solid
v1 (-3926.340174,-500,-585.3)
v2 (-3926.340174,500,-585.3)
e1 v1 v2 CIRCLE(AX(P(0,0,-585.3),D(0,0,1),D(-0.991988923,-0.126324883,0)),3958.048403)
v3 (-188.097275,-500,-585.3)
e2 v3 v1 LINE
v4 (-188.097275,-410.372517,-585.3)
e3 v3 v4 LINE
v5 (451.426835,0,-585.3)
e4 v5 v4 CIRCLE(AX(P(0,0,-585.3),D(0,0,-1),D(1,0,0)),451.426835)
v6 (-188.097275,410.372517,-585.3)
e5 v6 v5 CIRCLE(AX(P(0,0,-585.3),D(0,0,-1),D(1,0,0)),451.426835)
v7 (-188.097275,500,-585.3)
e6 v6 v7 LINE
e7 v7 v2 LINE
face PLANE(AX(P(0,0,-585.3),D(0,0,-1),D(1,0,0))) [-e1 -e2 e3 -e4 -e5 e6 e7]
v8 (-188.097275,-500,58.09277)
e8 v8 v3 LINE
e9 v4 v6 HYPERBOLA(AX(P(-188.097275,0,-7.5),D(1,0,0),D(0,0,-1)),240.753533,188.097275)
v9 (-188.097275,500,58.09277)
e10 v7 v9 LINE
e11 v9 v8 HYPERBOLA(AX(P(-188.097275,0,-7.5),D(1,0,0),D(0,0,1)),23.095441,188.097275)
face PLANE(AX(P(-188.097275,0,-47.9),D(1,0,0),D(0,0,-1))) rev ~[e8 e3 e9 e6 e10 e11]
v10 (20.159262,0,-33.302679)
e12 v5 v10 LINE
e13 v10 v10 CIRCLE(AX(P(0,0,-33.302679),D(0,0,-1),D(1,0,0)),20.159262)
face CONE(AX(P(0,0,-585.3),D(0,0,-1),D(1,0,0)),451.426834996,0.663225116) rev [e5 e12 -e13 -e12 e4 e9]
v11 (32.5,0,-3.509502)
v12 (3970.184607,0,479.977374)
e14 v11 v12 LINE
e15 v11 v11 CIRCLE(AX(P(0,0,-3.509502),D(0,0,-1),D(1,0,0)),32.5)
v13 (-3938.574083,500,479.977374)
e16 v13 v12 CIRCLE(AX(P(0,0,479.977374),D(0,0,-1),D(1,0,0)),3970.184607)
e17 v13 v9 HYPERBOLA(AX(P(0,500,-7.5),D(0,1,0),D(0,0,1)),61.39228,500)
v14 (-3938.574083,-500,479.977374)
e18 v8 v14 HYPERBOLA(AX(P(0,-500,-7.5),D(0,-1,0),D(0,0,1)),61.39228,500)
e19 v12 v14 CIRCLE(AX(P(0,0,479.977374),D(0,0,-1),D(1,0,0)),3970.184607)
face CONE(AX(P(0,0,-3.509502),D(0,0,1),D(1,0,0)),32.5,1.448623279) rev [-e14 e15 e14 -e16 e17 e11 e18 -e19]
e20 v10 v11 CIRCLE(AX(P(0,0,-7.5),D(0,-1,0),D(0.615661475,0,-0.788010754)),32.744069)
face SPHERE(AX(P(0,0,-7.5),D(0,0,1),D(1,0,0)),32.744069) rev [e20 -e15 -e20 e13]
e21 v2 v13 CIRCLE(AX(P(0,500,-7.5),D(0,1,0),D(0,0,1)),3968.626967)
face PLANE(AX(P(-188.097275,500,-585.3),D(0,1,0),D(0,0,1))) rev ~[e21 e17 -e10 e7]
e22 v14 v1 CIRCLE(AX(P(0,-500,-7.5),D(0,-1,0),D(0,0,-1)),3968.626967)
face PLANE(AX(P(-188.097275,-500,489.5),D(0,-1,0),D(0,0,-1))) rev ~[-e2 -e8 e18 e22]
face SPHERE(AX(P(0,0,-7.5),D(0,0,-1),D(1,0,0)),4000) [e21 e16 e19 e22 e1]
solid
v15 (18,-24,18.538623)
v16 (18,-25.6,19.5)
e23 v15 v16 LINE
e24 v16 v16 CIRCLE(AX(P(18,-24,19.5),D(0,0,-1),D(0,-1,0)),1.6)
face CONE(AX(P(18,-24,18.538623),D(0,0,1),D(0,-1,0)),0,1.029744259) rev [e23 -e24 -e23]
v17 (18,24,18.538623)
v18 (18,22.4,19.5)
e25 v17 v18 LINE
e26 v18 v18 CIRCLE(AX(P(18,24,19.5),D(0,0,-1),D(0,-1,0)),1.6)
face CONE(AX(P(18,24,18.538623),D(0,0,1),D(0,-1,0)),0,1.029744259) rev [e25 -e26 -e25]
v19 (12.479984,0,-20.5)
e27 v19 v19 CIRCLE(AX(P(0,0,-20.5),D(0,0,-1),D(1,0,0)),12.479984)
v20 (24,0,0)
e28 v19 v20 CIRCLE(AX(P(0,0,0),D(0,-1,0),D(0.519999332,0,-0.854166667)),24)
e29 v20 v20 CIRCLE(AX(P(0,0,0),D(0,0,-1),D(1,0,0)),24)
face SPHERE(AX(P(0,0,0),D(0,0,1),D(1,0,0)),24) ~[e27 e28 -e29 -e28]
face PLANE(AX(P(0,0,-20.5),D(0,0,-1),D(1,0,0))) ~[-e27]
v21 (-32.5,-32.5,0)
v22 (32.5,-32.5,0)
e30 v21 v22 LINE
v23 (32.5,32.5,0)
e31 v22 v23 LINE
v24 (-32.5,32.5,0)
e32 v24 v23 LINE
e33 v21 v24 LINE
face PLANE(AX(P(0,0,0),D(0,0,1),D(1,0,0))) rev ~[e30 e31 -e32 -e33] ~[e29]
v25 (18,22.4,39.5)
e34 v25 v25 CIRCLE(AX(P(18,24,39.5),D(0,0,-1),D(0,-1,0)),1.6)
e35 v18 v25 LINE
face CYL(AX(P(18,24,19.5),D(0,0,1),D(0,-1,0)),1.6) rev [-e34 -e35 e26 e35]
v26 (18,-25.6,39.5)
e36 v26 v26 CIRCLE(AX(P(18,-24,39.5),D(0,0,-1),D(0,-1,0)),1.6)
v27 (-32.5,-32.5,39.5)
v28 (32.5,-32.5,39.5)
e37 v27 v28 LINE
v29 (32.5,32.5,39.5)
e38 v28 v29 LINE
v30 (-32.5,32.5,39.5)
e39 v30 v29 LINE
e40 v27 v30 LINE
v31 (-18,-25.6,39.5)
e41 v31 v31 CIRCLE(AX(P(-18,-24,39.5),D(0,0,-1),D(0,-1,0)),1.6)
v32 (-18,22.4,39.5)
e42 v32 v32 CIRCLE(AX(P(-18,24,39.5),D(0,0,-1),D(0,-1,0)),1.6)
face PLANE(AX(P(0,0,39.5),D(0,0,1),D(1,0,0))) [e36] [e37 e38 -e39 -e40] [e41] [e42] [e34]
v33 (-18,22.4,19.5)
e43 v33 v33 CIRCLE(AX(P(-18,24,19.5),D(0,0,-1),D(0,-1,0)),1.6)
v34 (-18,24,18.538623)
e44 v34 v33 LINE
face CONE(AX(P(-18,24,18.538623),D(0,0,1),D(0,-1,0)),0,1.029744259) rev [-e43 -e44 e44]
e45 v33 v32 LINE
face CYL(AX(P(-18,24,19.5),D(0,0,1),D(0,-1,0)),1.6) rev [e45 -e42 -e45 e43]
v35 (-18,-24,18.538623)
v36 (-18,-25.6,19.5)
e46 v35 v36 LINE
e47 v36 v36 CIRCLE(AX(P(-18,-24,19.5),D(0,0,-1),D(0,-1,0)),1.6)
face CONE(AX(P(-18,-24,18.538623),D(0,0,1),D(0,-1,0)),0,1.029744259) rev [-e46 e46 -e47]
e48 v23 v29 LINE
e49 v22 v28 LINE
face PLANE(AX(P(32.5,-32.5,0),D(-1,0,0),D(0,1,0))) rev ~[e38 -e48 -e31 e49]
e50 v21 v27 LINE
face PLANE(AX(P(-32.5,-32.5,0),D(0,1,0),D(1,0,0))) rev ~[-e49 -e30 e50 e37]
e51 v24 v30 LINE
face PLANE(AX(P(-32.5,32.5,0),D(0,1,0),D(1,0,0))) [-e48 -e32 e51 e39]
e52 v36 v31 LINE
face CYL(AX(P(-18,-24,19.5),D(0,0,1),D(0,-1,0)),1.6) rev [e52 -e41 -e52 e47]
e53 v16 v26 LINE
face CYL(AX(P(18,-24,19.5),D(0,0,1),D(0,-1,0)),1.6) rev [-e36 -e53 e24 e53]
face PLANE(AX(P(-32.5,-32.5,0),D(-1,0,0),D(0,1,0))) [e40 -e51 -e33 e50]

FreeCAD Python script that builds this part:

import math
import FreeCAD as App
import Part
import Sketcher

V = App.Vector
Q = App.Units.Quantity

doc = App.newDocument("Part")
body = doc.addObject("PartDesign::Body", "Body")

# Sketch on XY plane
sketch1 = body.newObject("Sketcher::SketchObject", "Sketch")
sketch1.AttachmentSupport = (doc.getObject("XY_Plane"), [""])
sketch1.MapMode = "FlatFace"
sketch1.addGeometry(Part.LineSegment(V(-32, 32, 0), V(-32, -32, 0)), False)
sketch1.addGeometry(Part.LineSegment(V(-32, -32, 0), V(32, -32, 0)), False)
sketch1.addGeometry(Part.LineSegment(V(32, -32, 0), V(32, 32, 0)), False)
sketch1.addGeometry(Part.LineSegment(V(32, 32, 0), V(-32, 32, 0)), False)
sketch1.addConstraint(Sketcher.Constraint("Coincident", 0, 2, 1, 1))
sketch1.addConstraint(Sketcher.Constraint("Coincident", 1, 2, 2, 1))
sketch1.addConstraint(Sketcher.Constraint("Coincident", 2, 2, 3, 1))
sketch1.addConstraint(Sketcher.Constraint("Coincident", 3, 2, 0, 1))
sketch1.addConstraint(Sketcher.Constraint("Vertical", 0))
sketch1.addConstraint(Sketcher.Constraint("Horizontal", 1))
sketch1.addConstraint(Sketcher.Constraint("Vertical", 2))
sketch1.addConstraint(Sketcher.Constraint("Horizontal", 3))
sketch1.addConstraint(Sketcher.Constraint("Symmetric", 0, 2, 2, 2, -1, 1))
sketch1.addConstraint(Sketcher.Constraint("Equal", 3, 0))
sketch1.addConstraint(Sketcher.Constraint("DistanceX", 1, 1, 1, 2, 65.0))
pad1 = body.newObject("PartDesign::Pad", "Pad")
pad1.Profile = sketch1
pad1.Length = 39.5

# Sketch on XZ plane
sketch2 = body.newObject("Sketcher::SketchObject", "Sketch001")
sketch2.AttachmentSupport = (doc.getObject("XZ_Plane"), [""])
sketch2.MapMode = "FlatFace"
sketch2.addGeometry(Part.LineSegment(V(0, -20, 0), V(0, 0, 0)), False)
sketch2.addGeometry(Part.LineSegment(V(0, 0, 0), V(24, 0, 0)), False)
sketch2.addGeometry(Part.ArcOfCircle(Part.Circle(V(0, 0, 0), V(0, 0, 1), 24), math.radians(-59), math.radians(0)), False)
sketch2.addGeometry(Part.LineSegment(V(12, -20, 0), V(0, -20, 0)), False)
sketch2.addConstraint(Sketcher.Constraint("Coincident", 0, 2, 1, 1))
sketch2.addConstraint(Sketcher.Constraint("Coincident", 1, 2, 2, 2))
sketch2.addConstraint(Sketcher.Constraint("Coincident", 2, 1, 3, 1))
sketch2.addConstraint(Sketcher.Constraint("Coincident", 3, 2, 0, 1))
sketch2.addConstraint(Sketcher.Constraint("Vertical", 0))
sketch2.addConstraint(Sketcher.Constraint("Horizontal", 1))
sketch2.addConstraint(Sketcher.Constraint("Horizontal", 3))
sketch2.addConstraint(Sketcher.Constraint("Coincident", 2, 3, -1, 1))
sketch2.addConstraint(Sketcher.Constraint("Coincident", 0, 2, -1, 1))
sketch2.addConstraint(Sketcher.Constraint("Radius", 2, 24.0))
sketch2.addConstraint(Sketcher.Constraint("DistanceY", 0, 1, 0, 2, 20.5))
revolution = body.newObject("PartDesign::Revolution", "Revolution")
revolution.Profile = sketch2
revolution.ReferenceAxis = (sketch2, ["V_Axis"])
revolution.Angle = 360

# Sketch on YZ plane
sketch3 = body.newObject("Sketcher::SketchObject", "Sketch002")
sketch3.AttachmentSupport = (doc.getObject("YZ_Plane"), [""])
sketch3.MapMode = "FlatFace"
sketch3.AttachmentOffset = App.Placement(V(0, 0, 18), App.Rotation())
sketch3.addGeometry(Part.LineSegment(V(24, 18.5, 0), V(24, 39.5, 0)), False)
sketch3.addGeometry(Part.LineSegment(V(24, 39.5, 0), V(22.4, 39.5, 0)), False)
sketch3.addGeometry(Part.LineSegment(V(22.4, 39.5, 0), V(22.4, 19.5, 0)), False)
sketch3.addGeometry(Part.LineSegment(V(22.4, 19.5, 0), V(24, 18.5, 0)), False)
sketch3.addGeometry(Part.LineSegment(V(24, 39.5, 0), V(24, 18.5, 0)), True)  # axis
sketch3.addConstraint(Sketcher.Constraint("Coincident", 0, 2, 1, 1))
sketch3.addConstraint(Sketcher.Constraint("Coincident", 1, 2, 2, 1))
sketch3.addConstraint(Sketcher.Constraint("Coincident", 2, 2, 3, 1))
sketch3.addConstraint(Sketcher.Constraint("Coincident", 3, 2, 0, 1))
sketch3.addConstraint(Sketcher.Constraint("Vertical", 0))
sketch3.addConstraint(Sketcher.Constraint("Horizontal", 1))
sketch3.addConstraint(Sketcher.Constraint("Vertical", 2))
sketch3.addConstraint(Sketcher.Constraint("Vertical", 4))
sketch3.addConstraint(Sketcher.Constraint("Coincident", 4, 1, 0, 2))
sketch3.addConstraint(Sketcher.Constraint("Equal", 0, 4))
sketch3.addConstraint(Sketcher.Constraint("DistanceY", 2, 2, 2, 1, 20.0))
sketch3.addConstraint(Sketcher.Constraint("Angle", 3, Q("-31 deg")))
sketch3.addConstraint(Sketcher.Constraint("DistanceX", 1, 2, 1, 1, 1.6))
sketch3.addConstraint(Sketcher.Constraint("DistanceX", -1, 1, 0, 2, 24.0))
sketch3.addConstraint(Sketcher.Constraint("DistanceY", -1, 1, 0, 2, 39.5))
groove = body.newObject("PartDesign::Groove", "Groove")
groove.Profile = sketch3
groove.ReferenceAxis = (sketch3, ["Axis0"])
groove.Angle = 360
doc.recompute()

linearpattern = body.newObject("PartDesign::LinearPattern", "LinearPattern")
linearpattern.Originals = [groove]
linearpattern.Direction = (doc.getObject("X_Axis"), [""])
linearpattern.Mode = "offset"
linearpattern.Offset = 36
linearpattern.Occurrences = 2
linearpattern.Reversed = True
body.Tip = linearpattern
doc.recompute()

datumline = body.newObject("PartDesign::Line", "DatumLine")
datumline.Placement = App.Placement(V(0, 0, 0), App.Rotation(V(0, 0, 1), V(-0.6, -0.8, 0)))
linearpattern2 = body.newObject("PartDesign::LinearPattern", "LinearPattern001")
linearpattern2.Originals = [groove]
linearpattern2.Direction = (datumline, [""])
linearpattern2.Mode = "offset"
linearpattern2.Offset = 60
linearpattern2.Occurrences = 2
body.Tip = linearpattern2
doc.recompute()

linearpattern3 = body.newObject("PartDesign::LinearPattern", "LinearPattern002")
linearpattern3.Originals = [groove]
linearpattern3.Direction = (doc.getObject("Y_Axis"), [""])
linearpattern3.Mode = "offset"
linearpattern3.Offset = 48
linearpattern3.Occurrences = 2
linearpattern3.Reversed = True
body.Tip = linearpattern3
body2 = doc.addObject("PartDesign::Body", "Body001")

# Sketch on XZ plane
sketch4 = body2.newObject("Sketcher::SketchObject", "Sketch003")
sketch4.AttachmentSupport = (doc.getObject("XZ_Plane001"), [""])
sketch4.MapMode = "FlatFace"
sketch4.addGeometry(Part.LineSegment(V(32, -4, 0), V(3970, 480, 0)), False)
sketch4.addGeometry(Part.ArcOfCircle(Part.Circle(V(0, -8, 0), V(0, 0, 1), 4000), math.radians(-8.31), math.radians(7)), False)
sketch4.addGeometry(Part.LineSegment(V(3958, -585, 0), V(451, -585, 0)), False)
sketch4.addGeometry(Part.LineSegment(V(451, -585, 0), V(20, -33, 0)), False)
sketch4.addGeometry(Part.ArcOfCircle(Part.Circle(V(0, -8, 0), V(0, 0, 1), 33), math.radians(-52), math.radians(7)), False)
sketch4.addConstraint(Sketcher.Constraint("Coincident", 0, 2, 1, 2))
sketch4.addConstraint(Sketcher.Constraint("Coincident", 1, 1, 2, 1))
sketch4.addConstraint(Sketcher.Constraint("Coincident", 2, 2, 3, 1))
sketch4.addConstraint(Sketcher.Constraint("Coincident", 3, 2, 4, 1))
sketch4.addConstraint(Sketcher.Constraint("Coincident", 4, 2, 0, 1))
sketch4.addConstraint(Sketcher.Constraint("Horizontal", 2))
sketch4.addConstraint(Sketcher.Constraint("Coincident", 4, 3, 1, 3))
sketch4.addConstraint(Sketcher.Constraint("PointOnObject", 1, 3, -2))
sketch4.addConstraint(Sketcher.Constraint("Radius", 1, 4000.0))
sketch4.addConstraint(Sketcher.Constraint("Angle", 0, Q("7 deg")))
sketch4.addConstraint(Sketcher.Constraint("Angle", 3, Q("128 deg")))
sketch4.addConstraint(Sketcher.Constraint("DistanceY", 1, 3, -1, 1, 7.5))
sketch4.addConstraint(Sketcher.Constraint("DistanceY", 2, 2, -1, 1, 585.3))
sketch4.addConstraint(Sketcher.Constraint("DistanceX", -1, 1, 4, 2, 32.5))
sketch4.addConstraint(Sketcher.Constraint("Radius", 4, 32.744069))
sketch4.addConstraint(Sketcher.Constraint("DistanceX", 2, 2, 2, 1, 3506.621568))
revolution2 = body2.newObject("PartDesign::Revolution", "Revolution001")
revolution2.Profile = sketch4
revolution2.ReferenceAxis = (sketch4, ["V_Axis"])
revolution2.Angle = 360

# Sketch on YZ plane
sketch5 = body2.newObject("Sketcher::SketchObject", "Sketch004")
sketch5.AttachmentSupport = (doc.getObject("YZ_Plane001"), [""])
sketch5.MapMode = "FlatFace"
sketch5.AttachmentOffset = App.Placement(V(0, 0, -188.097275), App.Rotation())
sketch5.addGeometry(Part.LineSegment(V(-500, -585, 0), V(500, -585, 0)), False)
sketch5.addGeometry(Part.LineSegment(V(500, -585, 0), V(500, 490, 0)), False)
sketch5.addGeometry(Part.LineSegment(V(500, 490, 0), V(-500, 490, 0)), False)
sketch5.addGeometry(Part.LineSegment(V(-500, 490, 0), V(-500, -585, 0)), False)
sketch5.addConstraint(Sketcher.Constraint("Coincident", 0, 2, 1, 1))
sketch5.addConstraint(Sketcher.Constraint("Coincident", 1, 2, 2, 1))
sketch5.addConstraint(Sketcher.Constraint("Coincident", 2, 2, 3, 1))
sketch5.addConstraint(Sketcher.Constraint("Coincident", 3, 2, 0, 1))
sketch5.addConstraint(Sketcher.Constraint("Horizontal", 0))
sketch5.addConstraint(Sketcher.Constraint("Vertical", 1))
sketch5.addConstraint(Sketcher.Constraint("Horizontal", 2))
sketch5.addConstraint(Sketcher.Constraint("Vertical", 3))
sketch5.addConstraint(Sketcher.Constraint("DistanceX", 0, 1, 0, 2, 1000.0))
sketch5.addConstraint(Sketcher.Constraint("DistanceY", 1, 1, 1, 2, 1074.8))
sketch5.addConstraint(Sketcher.Constraint("DistanceX", -1, 1, 0, 2, 500.0))
sketch5.addConstraint(Sketcher.Constraint("DistanceY", 0, 2, -1, 1, 585.3))
pocket1 = body2.newObject("PartDesign::Pocket", "Pocket")
pocket1.Profile = sketch5
pocket1.Type = "ThroughAll"

doc.recompute()
